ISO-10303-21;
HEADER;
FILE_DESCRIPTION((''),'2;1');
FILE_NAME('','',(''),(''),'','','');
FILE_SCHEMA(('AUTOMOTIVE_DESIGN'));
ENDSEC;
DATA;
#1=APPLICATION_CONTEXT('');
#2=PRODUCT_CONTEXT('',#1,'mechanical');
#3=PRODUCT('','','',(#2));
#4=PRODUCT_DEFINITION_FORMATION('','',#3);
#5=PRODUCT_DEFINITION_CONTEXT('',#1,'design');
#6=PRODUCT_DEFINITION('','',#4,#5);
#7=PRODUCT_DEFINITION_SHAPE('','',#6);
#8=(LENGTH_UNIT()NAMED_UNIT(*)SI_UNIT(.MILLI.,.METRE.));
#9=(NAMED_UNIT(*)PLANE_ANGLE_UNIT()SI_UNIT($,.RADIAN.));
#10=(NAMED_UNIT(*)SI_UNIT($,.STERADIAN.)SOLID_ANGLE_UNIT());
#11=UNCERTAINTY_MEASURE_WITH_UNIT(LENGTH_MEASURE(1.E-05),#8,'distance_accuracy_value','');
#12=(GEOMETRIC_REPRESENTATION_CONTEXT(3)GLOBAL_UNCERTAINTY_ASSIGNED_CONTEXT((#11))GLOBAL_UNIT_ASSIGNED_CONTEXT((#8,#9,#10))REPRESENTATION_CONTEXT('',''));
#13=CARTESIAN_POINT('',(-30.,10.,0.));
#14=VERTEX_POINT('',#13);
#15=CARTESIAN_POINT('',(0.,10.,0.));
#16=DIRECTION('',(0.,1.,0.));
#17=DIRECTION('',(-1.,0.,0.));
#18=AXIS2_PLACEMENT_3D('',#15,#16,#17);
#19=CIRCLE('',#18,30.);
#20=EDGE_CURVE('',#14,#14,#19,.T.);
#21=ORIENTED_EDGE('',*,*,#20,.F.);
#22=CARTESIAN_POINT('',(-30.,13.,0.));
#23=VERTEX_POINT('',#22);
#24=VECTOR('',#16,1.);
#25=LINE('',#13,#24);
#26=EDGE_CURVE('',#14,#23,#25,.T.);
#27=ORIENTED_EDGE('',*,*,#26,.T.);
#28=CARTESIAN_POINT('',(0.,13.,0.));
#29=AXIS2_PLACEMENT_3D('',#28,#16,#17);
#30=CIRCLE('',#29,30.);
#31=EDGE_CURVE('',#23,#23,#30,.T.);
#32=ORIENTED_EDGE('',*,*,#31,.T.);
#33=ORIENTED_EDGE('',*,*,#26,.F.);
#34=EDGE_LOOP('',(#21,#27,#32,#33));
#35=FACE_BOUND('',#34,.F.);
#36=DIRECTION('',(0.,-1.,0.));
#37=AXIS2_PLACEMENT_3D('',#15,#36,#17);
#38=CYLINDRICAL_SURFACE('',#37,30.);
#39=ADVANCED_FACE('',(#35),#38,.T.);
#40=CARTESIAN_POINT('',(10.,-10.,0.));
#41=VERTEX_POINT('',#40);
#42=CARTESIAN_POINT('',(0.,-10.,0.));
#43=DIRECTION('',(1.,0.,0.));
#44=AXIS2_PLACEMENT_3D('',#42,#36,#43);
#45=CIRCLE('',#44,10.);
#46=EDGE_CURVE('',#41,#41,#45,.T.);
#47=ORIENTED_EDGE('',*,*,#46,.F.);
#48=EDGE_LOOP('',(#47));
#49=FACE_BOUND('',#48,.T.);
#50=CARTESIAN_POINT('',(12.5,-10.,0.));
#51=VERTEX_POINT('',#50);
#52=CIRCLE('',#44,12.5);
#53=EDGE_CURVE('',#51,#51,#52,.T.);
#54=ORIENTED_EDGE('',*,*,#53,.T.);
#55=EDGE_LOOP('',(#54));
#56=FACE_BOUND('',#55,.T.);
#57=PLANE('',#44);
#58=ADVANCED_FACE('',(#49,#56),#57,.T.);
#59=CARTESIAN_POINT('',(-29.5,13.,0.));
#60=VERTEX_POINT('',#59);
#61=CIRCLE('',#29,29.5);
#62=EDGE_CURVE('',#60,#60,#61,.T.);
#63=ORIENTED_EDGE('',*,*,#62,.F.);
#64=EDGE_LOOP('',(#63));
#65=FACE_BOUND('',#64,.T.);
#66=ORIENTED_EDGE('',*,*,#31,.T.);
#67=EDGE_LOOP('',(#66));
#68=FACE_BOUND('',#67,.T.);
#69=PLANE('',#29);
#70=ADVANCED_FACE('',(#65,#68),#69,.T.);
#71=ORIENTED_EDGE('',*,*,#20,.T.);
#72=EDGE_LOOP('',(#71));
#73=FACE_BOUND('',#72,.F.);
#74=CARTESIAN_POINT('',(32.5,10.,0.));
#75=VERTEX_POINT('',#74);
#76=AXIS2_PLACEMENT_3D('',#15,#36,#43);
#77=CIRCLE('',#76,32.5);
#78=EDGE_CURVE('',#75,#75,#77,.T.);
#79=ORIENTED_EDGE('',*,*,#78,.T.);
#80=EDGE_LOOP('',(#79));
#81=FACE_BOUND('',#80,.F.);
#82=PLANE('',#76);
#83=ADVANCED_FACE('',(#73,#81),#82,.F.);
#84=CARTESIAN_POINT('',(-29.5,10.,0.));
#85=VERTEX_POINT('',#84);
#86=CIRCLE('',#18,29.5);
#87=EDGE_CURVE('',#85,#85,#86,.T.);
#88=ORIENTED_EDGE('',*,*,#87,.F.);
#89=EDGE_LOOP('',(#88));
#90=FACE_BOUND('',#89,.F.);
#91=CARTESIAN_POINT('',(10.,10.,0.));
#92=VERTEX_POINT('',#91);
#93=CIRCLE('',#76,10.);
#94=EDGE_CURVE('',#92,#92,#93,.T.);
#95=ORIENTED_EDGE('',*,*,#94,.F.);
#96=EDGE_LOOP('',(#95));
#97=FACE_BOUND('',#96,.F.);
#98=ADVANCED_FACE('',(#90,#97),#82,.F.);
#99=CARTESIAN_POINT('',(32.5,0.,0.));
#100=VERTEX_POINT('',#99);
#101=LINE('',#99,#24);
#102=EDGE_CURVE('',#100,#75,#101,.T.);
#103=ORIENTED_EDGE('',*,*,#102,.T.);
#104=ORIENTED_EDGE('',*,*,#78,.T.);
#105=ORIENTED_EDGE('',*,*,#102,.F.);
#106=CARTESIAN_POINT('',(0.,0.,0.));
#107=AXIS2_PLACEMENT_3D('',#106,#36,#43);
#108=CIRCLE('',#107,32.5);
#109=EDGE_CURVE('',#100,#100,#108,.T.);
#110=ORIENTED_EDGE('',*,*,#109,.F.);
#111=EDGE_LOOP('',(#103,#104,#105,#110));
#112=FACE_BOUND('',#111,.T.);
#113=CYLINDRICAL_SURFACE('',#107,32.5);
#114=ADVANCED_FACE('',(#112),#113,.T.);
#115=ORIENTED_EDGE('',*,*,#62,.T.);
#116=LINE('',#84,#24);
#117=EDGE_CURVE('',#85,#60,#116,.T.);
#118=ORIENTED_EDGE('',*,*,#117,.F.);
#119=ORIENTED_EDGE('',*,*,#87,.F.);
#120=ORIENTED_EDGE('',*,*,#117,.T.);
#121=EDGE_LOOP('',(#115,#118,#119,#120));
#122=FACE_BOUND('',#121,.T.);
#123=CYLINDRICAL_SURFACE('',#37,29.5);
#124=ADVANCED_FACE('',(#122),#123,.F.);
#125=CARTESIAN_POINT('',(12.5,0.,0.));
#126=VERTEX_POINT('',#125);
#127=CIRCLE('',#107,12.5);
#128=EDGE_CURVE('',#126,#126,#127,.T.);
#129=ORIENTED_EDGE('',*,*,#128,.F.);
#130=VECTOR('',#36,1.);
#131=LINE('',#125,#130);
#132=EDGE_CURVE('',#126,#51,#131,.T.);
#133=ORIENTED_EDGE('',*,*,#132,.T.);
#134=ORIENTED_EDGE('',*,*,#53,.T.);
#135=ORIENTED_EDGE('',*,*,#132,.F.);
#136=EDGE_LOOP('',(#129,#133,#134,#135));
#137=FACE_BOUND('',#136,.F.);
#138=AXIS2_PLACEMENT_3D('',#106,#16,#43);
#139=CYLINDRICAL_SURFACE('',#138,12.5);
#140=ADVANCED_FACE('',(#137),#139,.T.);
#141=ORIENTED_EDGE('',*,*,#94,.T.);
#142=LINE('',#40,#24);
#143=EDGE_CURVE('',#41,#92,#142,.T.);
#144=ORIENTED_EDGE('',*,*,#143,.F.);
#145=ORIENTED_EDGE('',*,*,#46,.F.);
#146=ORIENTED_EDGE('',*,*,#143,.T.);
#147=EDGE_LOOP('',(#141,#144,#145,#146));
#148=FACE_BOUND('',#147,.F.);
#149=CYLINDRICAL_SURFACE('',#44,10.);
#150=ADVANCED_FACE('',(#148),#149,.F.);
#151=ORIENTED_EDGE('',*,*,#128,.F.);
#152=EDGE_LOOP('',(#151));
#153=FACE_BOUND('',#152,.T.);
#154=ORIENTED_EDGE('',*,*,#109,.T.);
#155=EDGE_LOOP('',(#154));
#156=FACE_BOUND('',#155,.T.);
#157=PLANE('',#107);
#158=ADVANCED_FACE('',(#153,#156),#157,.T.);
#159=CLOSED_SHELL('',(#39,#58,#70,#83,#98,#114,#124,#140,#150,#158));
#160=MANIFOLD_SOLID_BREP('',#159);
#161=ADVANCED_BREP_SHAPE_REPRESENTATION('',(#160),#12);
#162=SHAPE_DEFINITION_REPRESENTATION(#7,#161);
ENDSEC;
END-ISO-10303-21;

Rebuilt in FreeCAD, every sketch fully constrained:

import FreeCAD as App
import Part
import Sketcher
Q = App.Units.Quantity

doc = App.newDocument("Part")
params = doc.addObject("Spreadsheet::Sheet", "Params")
for row, (alias, value) in enumerate([
    ("sketch1_diameter", "65 mm"),
    ("pad1_length", "10 mm"),
    ("sketch2_diameter", "25 mm"),
    ("pad2_length", "10 mm"),
    ("sketch3_diameter", "20 mm"),
    ("pocket1_length", "20 mm"),
    ("sketch4_diameter", "60 mm"),
    ("sketch4_diameter2", "59 mm"),
    ("pad3_length", "3 mm"),
], start=1):
    params.set(f"A{row}", alias)
    params.set(f"B{row}", "=" + value)
    params.setAlias(f"B{row}", alias)

body = doc.addObject("PartDesign::Body", "Body")

sketch1 = body.newObject("Sketcher::SketchObject", "Sketch")
sketch1.AttachmentSupport = (doc.getObject("XZ_Plane"), [""])
sketch1.MapMode = "FlatFace"
sketch1.addGeometry(Part.Circle(App.Vector(0, 0, 0), App.Vector(0, 0, 1), 32), False)
sketch1.addConstraint([
    Sketcher.Constraint("Coincident", 0, 3, -1, 1),
    Sketcher.Constraint("Diameter", 0, Q("65 mm")),
])
sketch1.setExpression("Constraints[1]", "Params.sketch1_diameter")
pad1 = body.newObject("PartDesign::Pad", "Pad")
pad1.Profile = sketch1
pad1.setExpression("Length", "Params.pad1_length")
pad1.Reversed = True

sketch2 = body.newObject("Sketcher::SketchObject", "Sketch001")
sketch2.AttachmentSupport = (doc.getObject("XZ_Plane"), [""])
sketch2.MapMode = "FlatFace"
sketch2.addGeometry(Part.Circle(App.Vector(0, 0, 0), App.Vector(0, 0, 1), 12), False)
sketch2.addConstraint([
    Sketcher.Constraint("Coincident", 0, 3, -1, 1),
    Sketcher.Constraint("Diameter", 0, Q("25 mm")),
])
sketch2.setExpression("Constraints[1]", "Params.sketch2_diameter")
pad2 = body.newObject("PartDesign::Pad", "Pad001")
pad2.Profile = sketch2
pad2.setExpression("Length", "Params.pad2_length")

sketch3 = body.newObject("Sketcher::SketchObject", "Sketch002")
sketch3.AttachmentSupport = (doc.getObject("XZ_Plane"), [""])
sketch3.MapMode = "FlatFace"
sketch3.AttachmentOffset = App.Placement(App.Vector(0, 0, 10), App.Rotation())
sketch3.addGeometry(Part.Circle(App.Vector(0, 0, 0), App.Vector(0, 0, 1), 10), False)
sketch3.addConstraint([
    Sketcher.Constraint("Coincident", 0, 3, -1, 1),
    Sketcher.Constraint("Diameter", 0, Q("20 mm")),
])
sketch3.setExpression("Constraints[1]", "Params.sketch3_diameter")
pocket1 = body.newObject("PartDesign::Pocket", "Pocket")
pocket1.Profile = sketch3
pocket1.setExpression("Length", "Params.pocket1_length")

sketch4 = body.newObject("Sketcher::SketchObject", "Sketch003")
sketch4.AttachmentSupport = (doc.getObject("XZ_Plane"), [""])
sketch4.MapMode = "FlatFace"
sketch4.AttachmentOffset = App.Placement(App.Vector(0, 0, -10), App.Rotation())
sketch4.addGeometry([
    Part.Circle(App.Vector(0, 0, 0), App.Vector(0, 0, 1), 30),
    Part.Circle(App.Vector(0, 0, 0), App.Vector(0, 0, 1), 30),
], False)
sketch4.addConstraint([
    Sketcher.Constraint("Coincident", 0, 3, -1, 1),
    Sketcher.Constraint("Coincident", 1, 3, -1, 1),
    Sketcher.Constraint("Diameter", 0, Q("60 mm")),
    Sketcher.Constraint("Diameter", 1, Q("59 mm")),
])
sketch4.setExpression("Constraints[2]", "Params.sketch4_diameter")
sketch4.setExpression("Constraints[3]", "Params.sketch4_diameter2")
pad3 = body.newObject("PartDesign::Pad", "Pad002")
pad3.Profile = sketch4
pad3.setExpression("Length", "Params.pad3_length")
pad3.Reversed = True

doc.recompute()
